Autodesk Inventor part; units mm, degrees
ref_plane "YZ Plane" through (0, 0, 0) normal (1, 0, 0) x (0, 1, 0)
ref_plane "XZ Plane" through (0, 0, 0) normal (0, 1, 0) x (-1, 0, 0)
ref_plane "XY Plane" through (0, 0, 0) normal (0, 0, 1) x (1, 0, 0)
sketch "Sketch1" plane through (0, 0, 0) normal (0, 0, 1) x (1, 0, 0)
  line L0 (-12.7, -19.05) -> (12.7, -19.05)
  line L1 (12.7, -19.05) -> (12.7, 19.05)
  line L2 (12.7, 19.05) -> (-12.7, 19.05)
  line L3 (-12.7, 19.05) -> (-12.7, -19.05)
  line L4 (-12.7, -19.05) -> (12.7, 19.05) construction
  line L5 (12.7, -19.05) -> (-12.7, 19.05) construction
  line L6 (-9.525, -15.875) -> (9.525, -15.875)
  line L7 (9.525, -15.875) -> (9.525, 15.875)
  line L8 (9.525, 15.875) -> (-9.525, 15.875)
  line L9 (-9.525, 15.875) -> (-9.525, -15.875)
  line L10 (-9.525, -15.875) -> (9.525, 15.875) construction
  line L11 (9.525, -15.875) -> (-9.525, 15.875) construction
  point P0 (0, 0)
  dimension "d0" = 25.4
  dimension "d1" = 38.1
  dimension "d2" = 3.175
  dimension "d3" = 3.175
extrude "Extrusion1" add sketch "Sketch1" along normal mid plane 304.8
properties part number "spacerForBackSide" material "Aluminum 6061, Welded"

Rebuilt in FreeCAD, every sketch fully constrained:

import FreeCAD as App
import Part
import Sketcher

V = App.Vector
Q = App.Units.Quantity


def add_polygon(sketch, points):
    """Adds a closed chain of lines whose ends are joined by coincident constraints."""
    first, n = sketch.GeometryCount, len(points)
    for a, b in zip(points, points[1:] + points[:1]):
        sketch.addGeometry(Part.LineSegment(App.Vector(*a, 0), App.Vector(*b, 0)), False)
    for i in range(n):
        sketch.addConstraint(Sketcher.Constraint("Coincident", first + i, 2, first + (i + 1) % n, 1))

doc = App.newDocument("Part")
body = doc.addObject("PartDesign::Body", "Body")

sketch1 = body.newObject("Sketcher::SketchObject", "Sketch")
sketch1.AttachmentSupport = (doc.getObject("XY_Plane"), [""])
sketch1.MapMode = "FlatFace"
add_polygon(sketch1, [(-13, 19), (-13, -19), (13, -19), (13, 19)])
add_polygon(sketch1, [(10, -16), (-10, -16), (-10, 16), (10, 16)])
sketch1.addConstraint(Sketcher.Constraint("Vertical", 0))
sketch1.addConstraint(Sketcher.Constraint("Horizontal", 1))
sketch1.addConstraint(Sketcher.Constraint("Vertical", 2))
sketch1.addConstraint(Sketcher.Constraint("Horizontal", 3))
sketch1.addConstraint(Sketcher.Constraint("Horizontal", 4))
sketch1.addConstraint(Sketcher.Constraint("Vertical", 5))
sketch1.addConstraint(Sketcher.Constraint("Horizontal", 6))
sketch1.addConstraint(Sketcher.Constraint("Vertical", 7))
sketch1.addConstraint(Sketcher.Constraint("Symmetric", 0, 2, 2, 2, -1, 1))
sketch1.addConstraint(Sketcher.Constraint("Symmetric", 4, 2, 6, 2, -1, 1))
sketch1.addConstraint(Sketcher.Constraint("DistanceX", 1, 1, 1, 2, Q("1 in")))
sketch1.addConstraint(Sketcher.Constraint("DistanceY", 0, 2, 0, 1, Q("1.5 in")))
sketch1.addConstraint(Sketcher.Constraint("DistanceX", 0, 2, 4, 2, Q("0.125 in")))
sketch1.addConstraint(Sketcher.Constraint("DistanceY", 0, 2, 4, 2, Q("0.125 in")))
pad1 = body.newObject("PartDesign::Pad", "Pad")
pad1.Profile = sketch1
pad1.Length = Q("12 in")
pad1.Midplane = True

doc.recompute()
